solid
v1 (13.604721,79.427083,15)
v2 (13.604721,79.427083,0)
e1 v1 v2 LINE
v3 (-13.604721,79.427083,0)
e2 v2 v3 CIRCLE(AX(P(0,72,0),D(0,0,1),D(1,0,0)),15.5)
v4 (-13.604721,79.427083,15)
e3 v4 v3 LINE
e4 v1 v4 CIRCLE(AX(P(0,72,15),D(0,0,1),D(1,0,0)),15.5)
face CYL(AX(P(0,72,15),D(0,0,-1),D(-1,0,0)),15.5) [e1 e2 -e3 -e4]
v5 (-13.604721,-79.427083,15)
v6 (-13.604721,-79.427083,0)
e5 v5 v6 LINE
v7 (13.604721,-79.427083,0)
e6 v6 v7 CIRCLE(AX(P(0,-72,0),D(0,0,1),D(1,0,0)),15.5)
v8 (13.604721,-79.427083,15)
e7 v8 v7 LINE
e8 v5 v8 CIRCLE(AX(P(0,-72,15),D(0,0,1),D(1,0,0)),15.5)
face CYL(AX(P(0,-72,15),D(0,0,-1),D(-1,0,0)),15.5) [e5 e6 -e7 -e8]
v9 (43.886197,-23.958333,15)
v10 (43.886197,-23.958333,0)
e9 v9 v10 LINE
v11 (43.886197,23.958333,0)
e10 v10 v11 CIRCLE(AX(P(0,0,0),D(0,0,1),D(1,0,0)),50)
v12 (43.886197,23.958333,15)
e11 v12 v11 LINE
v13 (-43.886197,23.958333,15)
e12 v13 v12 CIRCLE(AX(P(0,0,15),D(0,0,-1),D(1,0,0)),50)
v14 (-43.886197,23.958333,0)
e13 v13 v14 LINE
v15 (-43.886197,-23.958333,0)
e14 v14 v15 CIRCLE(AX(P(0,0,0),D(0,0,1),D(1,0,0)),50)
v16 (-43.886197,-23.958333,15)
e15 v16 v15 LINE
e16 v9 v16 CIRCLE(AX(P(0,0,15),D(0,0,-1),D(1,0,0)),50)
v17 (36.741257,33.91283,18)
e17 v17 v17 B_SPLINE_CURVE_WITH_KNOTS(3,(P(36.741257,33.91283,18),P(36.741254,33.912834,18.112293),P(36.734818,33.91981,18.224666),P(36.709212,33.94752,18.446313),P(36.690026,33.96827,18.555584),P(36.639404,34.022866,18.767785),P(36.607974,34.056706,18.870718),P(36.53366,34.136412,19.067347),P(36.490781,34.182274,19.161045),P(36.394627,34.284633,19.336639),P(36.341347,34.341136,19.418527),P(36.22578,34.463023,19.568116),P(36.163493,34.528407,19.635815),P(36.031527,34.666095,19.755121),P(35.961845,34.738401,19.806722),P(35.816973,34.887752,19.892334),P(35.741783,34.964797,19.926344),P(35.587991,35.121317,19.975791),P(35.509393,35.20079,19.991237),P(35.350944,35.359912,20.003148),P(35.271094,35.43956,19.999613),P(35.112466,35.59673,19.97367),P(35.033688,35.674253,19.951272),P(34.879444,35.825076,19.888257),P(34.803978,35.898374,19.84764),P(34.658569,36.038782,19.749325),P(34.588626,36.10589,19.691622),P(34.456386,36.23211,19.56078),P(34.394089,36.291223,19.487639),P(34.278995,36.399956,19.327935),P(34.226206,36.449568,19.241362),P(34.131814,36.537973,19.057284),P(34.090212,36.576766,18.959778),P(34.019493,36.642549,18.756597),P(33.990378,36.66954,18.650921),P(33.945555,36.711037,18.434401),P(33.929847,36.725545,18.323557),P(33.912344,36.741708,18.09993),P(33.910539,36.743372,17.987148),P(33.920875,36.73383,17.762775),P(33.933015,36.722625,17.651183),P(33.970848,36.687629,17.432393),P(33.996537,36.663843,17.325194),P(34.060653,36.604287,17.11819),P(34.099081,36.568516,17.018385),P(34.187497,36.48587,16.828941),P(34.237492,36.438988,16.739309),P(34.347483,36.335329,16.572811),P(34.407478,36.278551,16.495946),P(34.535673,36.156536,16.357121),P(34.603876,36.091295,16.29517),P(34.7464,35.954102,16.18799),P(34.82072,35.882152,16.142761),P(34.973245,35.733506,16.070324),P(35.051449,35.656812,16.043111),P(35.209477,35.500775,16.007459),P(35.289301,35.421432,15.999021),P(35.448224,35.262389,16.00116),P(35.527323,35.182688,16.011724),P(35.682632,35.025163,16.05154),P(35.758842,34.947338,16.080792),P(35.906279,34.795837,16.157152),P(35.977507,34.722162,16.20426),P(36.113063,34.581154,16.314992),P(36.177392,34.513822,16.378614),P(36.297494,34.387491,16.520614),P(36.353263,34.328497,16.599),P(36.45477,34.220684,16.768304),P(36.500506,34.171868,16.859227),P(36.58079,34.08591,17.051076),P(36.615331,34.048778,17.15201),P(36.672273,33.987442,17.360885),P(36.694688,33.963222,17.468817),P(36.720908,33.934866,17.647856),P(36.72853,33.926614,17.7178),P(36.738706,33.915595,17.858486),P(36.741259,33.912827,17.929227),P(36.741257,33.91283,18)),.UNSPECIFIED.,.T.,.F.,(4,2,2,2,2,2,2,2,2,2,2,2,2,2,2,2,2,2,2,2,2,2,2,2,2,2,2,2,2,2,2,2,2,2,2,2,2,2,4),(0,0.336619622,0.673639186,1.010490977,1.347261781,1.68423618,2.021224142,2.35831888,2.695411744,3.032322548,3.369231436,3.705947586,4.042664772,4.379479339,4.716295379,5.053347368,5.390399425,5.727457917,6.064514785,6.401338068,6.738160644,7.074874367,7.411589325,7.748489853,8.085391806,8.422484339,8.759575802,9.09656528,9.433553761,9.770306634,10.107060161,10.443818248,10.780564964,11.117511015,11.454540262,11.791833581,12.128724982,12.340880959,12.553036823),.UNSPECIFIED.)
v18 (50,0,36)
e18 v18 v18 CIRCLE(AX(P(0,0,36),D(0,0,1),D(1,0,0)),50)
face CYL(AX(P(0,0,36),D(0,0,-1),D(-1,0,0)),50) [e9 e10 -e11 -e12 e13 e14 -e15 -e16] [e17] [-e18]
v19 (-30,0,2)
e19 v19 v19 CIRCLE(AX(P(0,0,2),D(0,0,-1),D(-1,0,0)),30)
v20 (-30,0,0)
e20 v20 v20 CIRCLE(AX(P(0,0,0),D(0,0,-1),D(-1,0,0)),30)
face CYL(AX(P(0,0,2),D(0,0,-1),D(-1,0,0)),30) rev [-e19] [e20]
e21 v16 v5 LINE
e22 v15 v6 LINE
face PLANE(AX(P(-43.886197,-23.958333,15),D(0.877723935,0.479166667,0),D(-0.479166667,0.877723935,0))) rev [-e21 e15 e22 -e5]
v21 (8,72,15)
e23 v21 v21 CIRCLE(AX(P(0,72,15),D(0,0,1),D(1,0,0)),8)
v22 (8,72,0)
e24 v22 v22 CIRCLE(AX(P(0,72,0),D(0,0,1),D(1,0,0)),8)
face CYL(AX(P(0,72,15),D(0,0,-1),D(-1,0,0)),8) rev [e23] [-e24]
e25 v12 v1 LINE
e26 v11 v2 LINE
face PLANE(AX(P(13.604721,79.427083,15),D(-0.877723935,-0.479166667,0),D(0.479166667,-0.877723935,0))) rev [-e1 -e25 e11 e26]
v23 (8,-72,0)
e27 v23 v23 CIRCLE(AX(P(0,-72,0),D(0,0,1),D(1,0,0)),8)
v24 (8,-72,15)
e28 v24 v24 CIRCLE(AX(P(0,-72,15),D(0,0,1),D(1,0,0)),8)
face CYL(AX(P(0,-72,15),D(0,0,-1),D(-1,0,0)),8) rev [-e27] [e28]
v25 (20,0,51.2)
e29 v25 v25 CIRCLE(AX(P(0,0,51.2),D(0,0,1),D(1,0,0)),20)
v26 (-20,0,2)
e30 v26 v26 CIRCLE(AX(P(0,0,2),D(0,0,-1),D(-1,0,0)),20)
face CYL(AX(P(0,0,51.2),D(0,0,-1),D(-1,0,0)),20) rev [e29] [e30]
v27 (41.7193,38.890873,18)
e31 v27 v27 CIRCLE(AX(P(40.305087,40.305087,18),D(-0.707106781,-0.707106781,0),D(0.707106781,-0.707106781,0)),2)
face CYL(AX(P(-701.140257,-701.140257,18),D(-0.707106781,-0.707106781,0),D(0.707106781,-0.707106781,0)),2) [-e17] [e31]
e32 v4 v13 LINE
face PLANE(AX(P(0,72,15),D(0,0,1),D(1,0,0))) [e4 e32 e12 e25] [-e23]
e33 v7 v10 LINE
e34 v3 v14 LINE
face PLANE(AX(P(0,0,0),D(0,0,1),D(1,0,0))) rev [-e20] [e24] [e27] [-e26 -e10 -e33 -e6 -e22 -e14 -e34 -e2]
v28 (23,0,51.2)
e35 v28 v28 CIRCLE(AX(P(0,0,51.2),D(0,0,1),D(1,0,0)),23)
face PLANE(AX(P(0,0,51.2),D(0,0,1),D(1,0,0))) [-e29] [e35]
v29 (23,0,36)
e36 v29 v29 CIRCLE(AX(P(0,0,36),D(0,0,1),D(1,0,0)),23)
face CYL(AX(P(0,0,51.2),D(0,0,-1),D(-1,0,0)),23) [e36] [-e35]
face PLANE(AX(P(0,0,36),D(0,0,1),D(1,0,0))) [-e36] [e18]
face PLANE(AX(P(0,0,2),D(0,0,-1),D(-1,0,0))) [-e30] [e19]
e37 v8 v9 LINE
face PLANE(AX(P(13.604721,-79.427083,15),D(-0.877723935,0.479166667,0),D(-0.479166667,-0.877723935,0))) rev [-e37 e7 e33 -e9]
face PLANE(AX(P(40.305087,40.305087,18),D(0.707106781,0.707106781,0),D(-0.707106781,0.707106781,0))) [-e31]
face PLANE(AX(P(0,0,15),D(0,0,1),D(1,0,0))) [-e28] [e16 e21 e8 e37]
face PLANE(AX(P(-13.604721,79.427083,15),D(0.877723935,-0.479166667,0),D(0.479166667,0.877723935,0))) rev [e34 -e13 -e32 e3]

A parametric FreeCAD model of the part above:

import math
import FreeCAD as App
import Part
import Sketcher

V = App.Vector
Q = App.Units.Quantity


def add_polygon(sketch, points):
    """Adds a closed chain of lines whose ends are joined by coincident constraints."""
    first, n = sketch.GeometryCount, len(points)
    for a, b in zip(points, points[1:] + points[:1]):
        sketch.addGeometry(Part.LineSegment(App.Vector(*a, 0), App.Vector(*b, 0)), False)
    for i in range(n):
        sketch.addConstraint(Sketcher.Constraint("Coincident", first + i, 2, first + (i + 1) % n, 1))

doc = App.newDocument("Part")
params = doc.addObject("Spreadsheet::Sheet", "Params")
for row, (alias, value) in enumerate([
    ("sketch1_diameter", "46 mm"),
    ("sketch1_diameter2", "40 mm"),
    ("pad1_length", "51.2 mm"),
    ("sketch2_diameter", "100 mm"),
    ("sketch2_diameter2", "46 mm"),
    ("pad2_length", "36 mm"),
    ("sketch3_radius", "50 mm"),
    ("sketch3_radius2", "15.5 mm"),
    ("pad3_length", "15 mm"),
    ("sketch4_diameter", "16 mm"),
    ("pocket1_length", "15 mm"),
    ("sketch5_width", "2 mm"),
    ("sketch5_height", "10 mm"),
    ("revolution_angle", "360 deg"),
    ("sketch6_diameter", "60 mm"),
    ("pocket2_length", "2 mm"),
], start=1):
    params.set(f"A{row}", alias)
    params.set(f"B{row}", "=" + value)
    params.setAlias(f"B{row}", alias)

body = doc.addObject("PartDesign::Body", "Body")

# Sketch on XY plane
sketch1 = doc.addObject("Sketcher::SketchObject", "Sketch")
body.addObject(sketch1)
sketch1.AttachmentSupport = (doc.XY_Plane, [""])
sketch1.MapMode = "FlatFace"
sketch1.addGeometry([
    Part.Circle(V(0, 0, 0), V(0, 0, 1), 23),
    Part.Circle(V(0, 0, 0), V(0, 0, 1), 20),
], False)
sketch1.addConstraint([
    Sketcher.Constraint("Coincident", 0, 3, -1, 1),
    Sketcher.Constraint("Coincident", 1, 3, -1, 1),
    Sketcher.Constraint("Diameter", 0, Q("46 mm")),
    Sketcher.Constraint("Diameter", 1, Q("40 mm")),
])
sketch1.setExpression("Constraints[2]", "Params.sketch1_diameter")
sketch1.setExpression("Constraints[3]", "Params.sketch1_diameter2")
pad1 = doc.addObject("PartDesign::Pad", "Pad")
body.addObject(pad1)
pad1.Profile = sketch1
pad1.setExpression("Length", "Params.pad1_length")

# Sketch on XY plane
sketch2 = doc.addObject("Sketcher::SketchObject", "Sketch001")
body.addObject(sketch2)
sketch2.AttachmentSupport = (doc.XY_Plane, [""])
sketch2.MapMode = "FlatFace"
sketch2.addGeometry([
    Part.Circle(V(0, 0, 0), V(0, 0, 1), 50),
    Part.Circle(V(0, 0, 0), V(0, 0, 1), 23),
], False)
sketch2.addConstraint([
    Sketcher.Constraint("Coincident", 0, 3, -1, 1),
    Sketcher.Constraint("Coincident", 1, 3, -1, 1),
    Sketcher.Constraint("Diameter", 0, Q("100 mm")),
    Sketcher.Constraint("Diameter", 1, Q("46 mm")),
])
sketch2.setExpression("Constraints[2]", "Params.sketch2_diameter")
sketch2.setExpression("Constraints[3]", "Params.sketch2_diameter2")
pad2 = doc.addObject("PartDesign::Pad", "Pad001")
body.addObject(pad2)
pad2.Profile = sketch2
pad2.setExpression("Length", "Params.pad2_length")

# Sketch on XY plane
sketch3 = doc.addObject("Sketcher::SketchObject", "Sketch002")
body.addObject(sketch3)
sketch3.AttachmentSupport = (doc.XY_Plane, [""])
sketch3.MapMode = "FlatFace"
sketch3.addGeometry([
    Part.LineSegment(V(-44, -24, 0), V(-14, -79, 0)),  # 0
    Part.ArcOfCircle(Part.Circle(V(0, -72, 0), V(0, 0, 1), 16), math.radians(-151), math.radians(-29)),  # 1
    Part.LineSegment(V(14, -79, 0), V(44, -24, 0)),  # 2
    Part.ArcOfCircle(Part.Circle(V(0, 0, 0), V(0, 0, 1), 50), math.radians(-151), math.radians(-29)),  # 3
    Part.LineSegment(V(-14, 79, 0), V(-44, 24, 0)),  # 4
    Part.ArcOfCircle(Part.Circle(V(0, 0, 0), V(0, 0, 1), 50), math.radians(29), math.radians(151)),  # 5
    Part.LineSegment(V(44, 24, 0), V(14, 79, 0)),  # 6
    Part.ArcOfCircle(Part.Circle(V(0, 72, 0), V(0, 0, 1), 16), math.radians(29), math.radians(151)),  # 7
], False)
sketch3.addConstraint([
    Sketcher.Constraint("Tangent", 0, 2, 1, 1),
    Sketcher.Constraint("Tangent", 1, 2, 2, 1),
    Sketcher.Constraint("Tangent", 2, 2, 3, 2),
    Sketcher.Constraint("Tangent", 3, 1, 0, 1),
    Sketcher.Constraint("Tangent", 4, 2, 5, 2),
    Sketcher.Constraint("Tangent", 5, 1, 6, 1),
    Sketcher.Constraint("Tangent", 6, 2, 7, 1),
    Sketcher.Constraint("Tangent", 7, 2, 4, 1),
    Sketcher.Constraint("Coincident", 3, 3, -1, 1),
    Sketcher.Constraint("Coincident", 5, 3, -1, 1),
    Sketcher.Constraint("Equal", 3, 5),
    Sketcher.Constraint("Equal", 1, 7),
    Sketcher.Constraint("Symmetric", 1, 3, 7, 3, -1, 1),
    Sketcher.Constraint("PointOnObject", 1, 3, -2),
    Sketcher.Constraint("Radius", 3, Q("50 mm")),
    Sketcher.Constraint("Radius", 1, Q("15.5 mm")),
    Sketcher.Constraint("DistanceY", 1, 3, -1, 1, Q("72 mm")),
])
sketch3.setExpression("Constraints[14]", "Params.sketch3_radius")
sketch3.setExpression("Constraints[15]", "Params.sketch3_radius2")
pad3 = doc.addObject("PartDesign::Pad", "Pad002")
body.addObject(pad3)
pad3.Profile = sketch3
pad3.setExpression("Length", "Params.pad3_length")

# Sketch on XY plane
sketch4 = doc.addObject("Sketcher::SketchObject", "Sketch003")
body.addObject(sketch4)
sketch4.AttachmentSupport = (doc.XY_Plane, [""])
sketch4.MapMode = "FlatFace"
sketch4.addGeometry([
    Part.Circle(V(0, 72, 0), V(0, 0, 1), 8),
    Part.Circle(V(0, -72, 0), V(0, 0, 1), 8),
], False)
sketch4.addConstraint([
    Sketcher.Constraint("Equal", 0, 1),
    Sketcher.Constraint("Symmetric", 0, 3, 1, 3, -1, 1),
    Sketcher.Constraint("PointOnObject", 0, 3, -2),
    Sketcher.Constraint("Diameter", 0, Q("16 mm")),
    Sketcher.Constraint("DistanceY", -1, 1, 0, 3, Q("72 mm")),
])
sketch4.setExpression("Constraints[3]", "Params.sketch4_diameter")
pocket1 = doc.addObject("PartDesign::Pocket", "Pocket")
body.addObject(pocket1)
pocket1.Profile = sketch4
pocket1.setExpression("Length", "Params.pocket1_length")
pocket1.Reversed = True

# Sketch on an angled plane
sketch5 = doc.addObject("Sketcher::SketchObject", "Sketch004")
body.addObject(sketch5)
sketch5.Placement = App.Placement(V(0, 0, 0), App.Rotation(V(0, 0, 1), V(0.707106781, 0.707106781, 0), V(-0.707106781, 0.707106781, 0), "ZXY"))
add_polygon(sketch5, [(18, 57), (18, 47), (20, 47), (20, 57)])  # lines 0-3
sketch5.addGeometry(Part.LineSegment(V(18, 47, 0), V(18, 57, 0)), True)  # axis
sketch5.addConstraint([
    Sketcher.Constraint("Vertical", 0),
    Sketcher.Constraint("Horizontal", 1),
    Sketcher.Constraint("Vertical", 2),
    Sketcher.Constraint("Horizontal", 3),
    Sketcher.Constraint("Vertical", 4),
    Sketcher.Constraint("Coincident", 4, 1, 0, 2),
    Sketcher.Constraint("Horizontal", 2, 2, 4, 2),
    Sketcher.Constraint("DistanceX", 1, 1, 1, 2, Q("2 mm")),
    Sketcher.Constraint("DistanceY", 0, 2, 0, 1, Q("10 mm")),
    Sketcher.Constraint("DistanceX", -1, 1, 0, 2, Q("18 mm")),
    Sketcher.Constraint("DistanceY", -1, 1, 0, 2, Q("47 mm")),
])
sketch5.setExpression("Constraints[11]", "Params.sketch5_width")
sketch5.setExpression("Constraints[12]", "Params.sketch5_height")
revolution = doc.addObject("PartDesign::Revolution", "Revolution")
body.addObject(revolution)
revolution.Profile = sketch5
revolution.ReferenceAxis = (sketch5, ["Axis0"])
revolution.setExpression("Angle", "Params.revolution_angle")

# Sketch on XY plane
sketch6 = doc.addObject("Sketcher::SketchObject", "Sketch005")
body.addObject(sketch6)
sketch6.AttachmentSupport = (doc.XY_Plane, [""])
sketch6.MapMode = "FlatFace"
sketch6.addGeometry(Part.Circle(V(0, 0, 0), V(0, 0, 1), 30), False)
sketch6.addConstraint([
    Sketcher.Constraint("Coincident", 0, 3, -1, 1),
    Sketcher.Constraint("Diameter", 0, Q("60 mm")),
])
sketch6.setExpression("Constraints[1]", "Params.sketch6_diameter")
pocket2 = doc.addObject("PartDesign::Pocket", "Pocket001")
body.addObject(pocket2)
pocket2.Profile = sketch6
pocket2.setExpression("Length", "Params.pocket2_length")
pocket2.Reversed = True

doc.recompute()
